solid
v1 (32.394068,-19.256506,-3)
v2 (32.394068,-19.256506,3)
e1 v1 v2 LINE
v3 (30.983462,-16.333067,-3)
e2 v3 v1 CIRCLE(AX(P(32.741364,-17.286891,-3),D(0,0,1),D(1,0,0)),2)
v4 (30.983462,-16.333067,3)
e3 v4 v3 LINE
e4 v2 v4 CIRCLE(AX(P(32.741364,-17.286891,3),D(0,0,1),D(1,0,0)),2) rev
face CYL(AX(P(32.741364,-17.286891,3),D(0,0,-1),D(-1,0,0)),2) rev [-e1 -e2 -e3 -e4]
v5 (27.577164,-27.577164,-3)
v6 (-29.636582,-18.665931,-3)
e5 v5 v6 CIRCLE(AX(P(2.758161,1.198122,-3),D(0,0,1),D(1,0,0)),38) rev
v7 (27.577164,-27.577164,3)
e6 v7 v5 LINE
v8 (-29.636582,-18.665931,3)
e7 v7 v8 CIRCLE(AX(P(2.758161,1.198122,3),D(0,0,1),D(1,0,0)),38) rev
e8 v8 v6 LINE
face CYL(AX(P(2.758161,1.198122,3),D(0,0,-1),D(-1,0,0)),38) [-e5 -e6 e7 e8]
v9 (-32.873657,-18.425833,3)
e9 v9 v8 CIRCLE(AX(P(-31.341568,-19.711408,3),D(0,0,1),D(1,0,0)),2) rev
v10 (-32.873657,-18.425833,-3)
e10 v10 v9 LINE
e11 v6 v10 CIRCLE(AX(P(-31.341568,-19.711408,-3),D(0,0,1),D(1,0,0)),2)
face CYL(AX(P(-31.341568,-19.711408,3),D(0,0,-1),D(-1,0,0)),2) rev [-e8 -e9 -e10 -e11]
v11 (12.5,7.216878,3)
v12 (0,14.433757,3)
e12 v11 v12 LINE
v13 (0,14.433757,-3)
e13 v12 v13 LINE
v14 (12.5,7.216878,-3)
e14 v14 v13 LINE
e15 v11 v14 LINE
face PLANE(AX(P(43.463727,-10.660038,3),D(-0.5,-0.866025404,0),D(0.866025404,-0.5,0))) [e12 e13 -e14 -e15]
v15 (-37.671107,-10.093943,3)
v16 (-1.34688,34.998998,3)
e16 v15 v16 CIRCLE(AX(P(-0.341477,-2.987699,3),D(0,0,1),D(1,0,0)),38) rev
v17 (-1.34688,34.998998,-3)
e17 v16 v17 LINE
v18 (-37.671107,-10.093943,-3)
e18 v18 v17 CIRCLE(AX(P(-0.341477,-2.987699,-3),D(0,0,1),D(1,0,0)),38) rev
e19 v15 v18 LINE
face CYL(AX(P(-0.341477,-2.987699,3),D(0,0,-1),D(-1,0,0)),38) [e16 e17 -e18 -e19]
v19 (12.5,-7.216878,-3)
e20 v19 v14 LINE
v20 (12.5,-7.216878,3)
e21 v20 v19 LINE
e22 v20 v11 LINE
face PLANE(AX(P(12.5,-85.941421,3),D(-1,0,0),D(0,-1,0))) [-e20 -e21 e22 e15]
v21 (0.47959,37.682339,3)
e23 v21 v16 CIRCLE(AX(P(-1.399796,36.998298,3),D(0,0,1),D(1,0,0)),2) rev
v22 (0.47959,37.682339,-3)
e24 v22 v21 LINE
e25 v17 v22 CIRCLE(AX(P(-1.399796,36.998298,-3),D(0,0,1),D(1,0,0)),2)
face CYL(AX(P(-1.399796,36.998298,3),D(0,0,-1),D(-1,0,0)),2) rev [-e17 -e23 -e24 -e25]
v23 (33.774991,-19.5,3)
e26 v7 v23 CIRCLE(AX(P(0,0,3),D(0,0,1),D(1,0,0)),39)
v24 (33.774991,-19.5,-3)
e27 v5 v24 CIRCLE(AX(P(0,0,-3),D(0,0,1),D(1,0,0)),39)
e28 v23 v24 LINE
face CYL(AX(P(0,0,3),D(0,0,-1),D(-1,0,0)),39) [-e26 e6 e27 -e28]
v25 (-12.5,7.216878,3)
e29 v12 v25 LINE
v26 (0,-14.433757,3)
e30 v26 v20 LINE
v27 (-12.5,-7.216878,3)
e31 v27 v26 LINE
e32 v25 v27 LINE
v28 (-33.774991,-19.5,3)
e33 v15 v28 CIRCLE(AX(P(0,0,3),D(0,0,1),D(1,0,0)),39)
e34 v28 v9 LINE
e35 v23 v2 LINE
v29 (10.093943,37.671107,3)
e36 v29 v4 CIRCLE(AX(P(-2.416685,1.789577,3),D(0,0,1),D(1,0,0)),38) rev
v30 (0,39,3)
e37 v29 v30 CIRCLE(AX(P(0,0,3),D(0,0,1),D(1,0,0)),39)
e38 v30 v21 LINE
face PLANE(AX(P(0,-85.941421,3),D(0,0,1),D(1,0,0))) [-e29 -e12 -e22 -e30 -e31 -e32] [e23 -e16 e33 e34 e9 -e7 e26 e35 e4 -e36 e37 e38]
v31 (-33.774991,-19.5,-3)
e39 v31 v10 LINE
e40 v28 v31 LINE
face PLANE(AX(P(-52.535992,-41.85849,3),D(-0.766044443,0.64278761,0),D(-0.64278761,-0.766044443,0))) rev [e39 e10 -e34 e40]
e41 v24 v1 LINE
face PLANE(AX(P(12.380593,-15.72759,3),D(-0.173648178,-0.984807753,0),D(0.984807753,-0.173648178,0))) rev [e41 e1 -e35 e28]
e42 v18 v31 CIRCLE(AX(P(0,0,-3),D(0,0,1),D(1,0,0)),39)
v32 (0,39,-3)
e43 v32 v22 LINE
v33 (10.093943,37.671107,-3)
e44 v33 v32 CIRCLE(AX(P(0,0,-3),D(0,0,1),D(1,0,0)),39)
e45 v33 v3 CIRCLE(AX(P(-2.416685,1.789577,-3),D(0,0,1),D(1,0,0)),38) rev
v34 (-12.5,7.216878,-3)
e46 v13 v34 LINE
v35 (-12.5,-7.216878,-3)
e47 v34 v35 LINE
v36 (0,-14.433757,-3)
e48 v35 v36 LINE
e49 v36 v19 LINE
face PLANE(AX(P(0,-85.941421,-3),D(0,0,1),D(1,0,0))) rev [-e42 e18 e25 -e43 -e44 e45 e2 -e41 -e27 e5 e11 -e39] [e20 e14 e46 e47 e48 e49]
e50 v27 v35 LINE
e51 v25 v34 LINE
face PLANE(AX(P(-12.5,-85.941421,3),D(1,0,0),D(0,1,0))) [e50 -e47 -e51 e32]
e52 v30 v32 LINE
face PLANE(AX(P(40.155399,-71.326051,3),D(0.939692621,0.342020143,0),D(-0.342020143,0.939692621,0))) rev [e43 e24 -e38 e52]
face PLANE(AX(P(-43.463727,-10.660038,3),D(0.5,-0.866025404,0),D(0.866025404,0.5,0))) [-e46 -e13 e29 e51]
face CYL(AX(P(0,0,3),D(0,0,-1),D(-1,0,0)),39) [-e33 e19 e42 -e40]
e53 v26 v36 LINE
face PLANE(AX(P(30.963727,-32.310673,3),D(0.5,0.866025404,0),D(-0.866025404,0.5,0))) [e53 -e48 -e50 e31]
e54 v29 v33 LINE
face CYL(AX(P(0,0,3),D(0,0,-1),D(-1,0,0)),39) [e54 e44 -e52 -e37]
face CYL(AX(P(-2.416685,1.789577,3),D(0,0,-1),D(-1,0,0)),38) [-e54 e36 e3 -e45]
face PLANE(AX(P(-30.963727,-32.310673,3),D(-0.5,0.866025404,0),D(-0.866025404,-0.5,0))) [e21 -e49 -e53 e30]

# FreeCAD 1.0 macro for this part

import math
import FreeCAD as App
import Part
import Sketcher
from FreeCAD import Vector


def edges_at(feature, points):
    """Names of the edges that pass closest to the given points."""
    edges = feature.Shape.Edges
    near = lambda p: min(range(len(edges)), key=lambda i: edges[i].distToShape(Part.Vertex(*p))[0])
    return sorted({f"Edge{near(p) + 1}" for p in points})


def add_polygon(sketch, points):
    """Adds a closed chain of lines whose ends are joined by coincident constraints."""
    first, n = sketch.GeometryCount, len(points)
    for a, b in zip(points, points[1:] + points[:1]):
        sketch.addGeometry(Part.LineSegment(App.Vector(*a, 0), App.Vector(*b, 0)), False)
    for i in range(n):
        sketch.addConstraint(Sketcher.Constraint("Coincident", first + i, 2, first + (i + 1) % n, 1))

doc = App.newDocument("Part")
body = doc.addObject("PartDesign::Body", "Body")

sketch1 = doc.addObject("Sketcher::SketchObject", "Sketch")
body.addObject(sketch1)
sketch1.AttachmentSupport = (doc.XY_Plane, [""])
sketch1.MapMode = "FlatFace"
sketch1.addGeometry(Part.ArcOfCircle(Part.Circle(Vector(0, 0, 0), Vector(0, 0, 1), 39), math.radians(75), math.radians(90)), False)
sketch1.addGeometry(Part.LineSegment(Vector(0, 39, 0), Vector(1.467077, 34.969239, 0)), False)
sketch1.addGeometry(Part.ArcOfCircle(Part.Circle(Vector(-0.341477, -2.987699, 0), Vector(0, 0, 1), 38), math.radians(87.272061), math.radians(190.778134)), False)
sketch1.addGeometry(Part.ArcOfCircle(Part.Circle(Vector(0, 0, 0), Vector(0, 0, 1), 39), math.radians(-165), math.radians(-150)), False)
sketch1.addGeometry(Part.LineSegment(Vector(-33.774991, -19.5, 0), Vector(-31.017788, -16.214094, 0)), False)
sketch1.addGeometry(Part.ArcOfCircle(Part.Circle(Vector(2.758161, 1.198122, 0), Vector(0, 0, 1), 38), math.radians(-152.727939), math.radians(-49.221866)), False)
sketch1.addGeometry(Part.ArcOfCircle(Part.Circle(Vector(0, 0, 0), Vector(0, 0, 1), 39), math.radians(-45), math.radians(-30)), False)
sketch1.addGeometry(Part.LineSegment(Vector(33.774991, -19.5, 0), Vector(29.550711, -18.755145, 0)), False)
sketch1.addGeometry(Part.ArcOfCircle(Part.Circle(Vector(-2.416685, 1.789577, 0), Vector(0, 0, 1), 38), math.radians(-32.727939), math.radians(70.778134)), False)
add_polygon(sketch1, [(-12.5, -7.216878), (-12.5, 7.216878), (0, 14.433757), (12.5, 7.216878), (12.5, -7.216878), (0, -14.433757)])
sketch1.addConstraint(Sketcher.Constraint("Coincident", 0, 2, 1, 1))
sketch1.addConstraint(Sketcher.Constraint("Coincident", 1, 2, 2, 1))
sketch1.addConstraint(Sketcher.Constraint("Coincident", 2, 2, 3, 1))
sketch1.addConstraint(Sketcher.Constraint("Coincident", 3, 2, 4, 1))
sketch1.addConstraint(Sketcher.Constraint("Coincident", 4, 2, 5, 1))
sketch1.addConstraint(Sketcher.Constraint("Coincident", 5, 2, 6, 1))
sketch1.addConstraint(Sketcher.Constraint("Coincident", 6, 2, 7, 1))
sketch1.addConstraint(Sketcher.Constraint("Coincident", 7, 2, 8, 1))
sketch1.addConstraint(Sketcher.Constraint("Coincident", 8, 2, 0, 1))
sketch1.addConstraint(Sketcher.Constraint("Vertical", 9))
sketch1.addConstraint(Sketcher.Constraint("Vertical", 12))
sketch1.addConstraint(Sketcher.Constraint("Coincident", 0, 3, -1, 1))
sketch1.addConstraint(Sketcher.Constraint("Coincident", 3, 3, -1, 1))
sketch1.addConstraint(Sketcher.Constraint("Coincident", 6, 3, -1, 1))
sketch1.addConstraint(Sketcher.Constraint("PointOnObject", 0, 2, -2))
sketch1.addConstraint(Sketcher.Constraint("PointOnObject", 10, 2, -2))
sketch1.addConstraint(Sketcher.Constraint("PointOnObject", 13, 2, -2))
sketch1.addConstraint(Sketcher.Constraint("Radius", 0, 39.0))
sketch1.addConstraint(Sketcher.Constraint("Radius", 2, 38.0))
sketch1.addConstraint(Sketcher.Constraint("Radius", 3, 39.0))
sketch1.addConstraint(Sketcher.Constraint("Radius", 5, 38.0))
sketch1.addConstraint(Sketcher.Constraint("Radius", 6, 39.0))
sketch1.addConstraint(Sketcher.Constraint("Radius", 8, 38.0))
sketch1.addConstraint(Sketcher.Constraint("DistanceY", 3, 2, -1, 1, 19.5))
sketch1.addConstraint(Sketcher.Constraint("DistanceY", 6, 2, -1, 1, 19.5))
sketch1.addConstraint(Sketcher.Constraint("DistanceX", 9, 2, -1, 1, 12.5))
sketch1.addConstraint(Sketcher.Constraint("DistanceX", -1, 1, 11, 2, 12.5))
sketch1.addConstraint(Sketcher.Constraint("DistanceY", 12, 2, 5, 3, 8.415))
sketch1.addConstraint(Sketcher.Constraint("DistanceY", 2, 3, -1, 1, 2.987699))
sketch1.addConstraint(Sketcher.Constraint("DistanceY", 8, 3, 9, 2, 5.427301))
sketch1.addConstraint(Sketcher.Constraint("DistanceY", 9, 1, 9, 2, 14.433757))
sketch1.addConstraint(Sketcher.Constraint("DistanceY", 12, 2, 12, 1, 14.433757))
sketch1.addConstraint(Sketcher.Constraint("DistanceX", -1, 1, 5, 3, 2.758161))
sketch1.addConstraint(Sketcher.Constraint("DistanceY", -1, 1, 5, 3, 1.198122))
sketch1.addConstraint(Sketcher.Constraint("DistanceY", -1, 1, 1, 2, 34.969239))
sketch1.addConstraint(Sketcher.Constraint("DistanceX", -1, 1, 7, 2, 29.550711))
sketch1.addConstraint(Sketcher.Constraint("DistanceY", -1, 1, 9, 2, 7.216878))
sketch1.addConstraint(Sketcher.Constraint("DistanceX", 2, 3, 5, 3, 3.099638))
sketch1.addConstraint(Sketcher.Constraint("DistanceX", 8, 3, 1, 2, 3.883762))
sketch1.addConstraint(Sketcher.Constraint("DistanceX", 2, 2, 4, 2, 6.653319))
sketch1.addConstraint(Sketcher.Constraint("DistanceY", 8, 3, 10, 2, 12.64418))
sketch1.addConstraint(Sketcher.Constraint("DistanceY", 13, 2, 12, 2, 7.216878))
pad1 = doc.addObject("PartDesign::Pad", "Pad")
body.addObject(pad1)
pad1.Profile = sketch1
pad1.Length = 6
pad1.Midplane = True
doc.recompute()

fillet = doc.addObject("PartDesign::Fillet", "Fillet")
body.addObject(fillet)
fillet.Base = (pad1, edges_at(pad1, [(1.467, 34.969, 0), (29.551, -18.755, 0), (-31.018, -16.214, 0)]))
fillet.Radius = 2

doc.recompute()
